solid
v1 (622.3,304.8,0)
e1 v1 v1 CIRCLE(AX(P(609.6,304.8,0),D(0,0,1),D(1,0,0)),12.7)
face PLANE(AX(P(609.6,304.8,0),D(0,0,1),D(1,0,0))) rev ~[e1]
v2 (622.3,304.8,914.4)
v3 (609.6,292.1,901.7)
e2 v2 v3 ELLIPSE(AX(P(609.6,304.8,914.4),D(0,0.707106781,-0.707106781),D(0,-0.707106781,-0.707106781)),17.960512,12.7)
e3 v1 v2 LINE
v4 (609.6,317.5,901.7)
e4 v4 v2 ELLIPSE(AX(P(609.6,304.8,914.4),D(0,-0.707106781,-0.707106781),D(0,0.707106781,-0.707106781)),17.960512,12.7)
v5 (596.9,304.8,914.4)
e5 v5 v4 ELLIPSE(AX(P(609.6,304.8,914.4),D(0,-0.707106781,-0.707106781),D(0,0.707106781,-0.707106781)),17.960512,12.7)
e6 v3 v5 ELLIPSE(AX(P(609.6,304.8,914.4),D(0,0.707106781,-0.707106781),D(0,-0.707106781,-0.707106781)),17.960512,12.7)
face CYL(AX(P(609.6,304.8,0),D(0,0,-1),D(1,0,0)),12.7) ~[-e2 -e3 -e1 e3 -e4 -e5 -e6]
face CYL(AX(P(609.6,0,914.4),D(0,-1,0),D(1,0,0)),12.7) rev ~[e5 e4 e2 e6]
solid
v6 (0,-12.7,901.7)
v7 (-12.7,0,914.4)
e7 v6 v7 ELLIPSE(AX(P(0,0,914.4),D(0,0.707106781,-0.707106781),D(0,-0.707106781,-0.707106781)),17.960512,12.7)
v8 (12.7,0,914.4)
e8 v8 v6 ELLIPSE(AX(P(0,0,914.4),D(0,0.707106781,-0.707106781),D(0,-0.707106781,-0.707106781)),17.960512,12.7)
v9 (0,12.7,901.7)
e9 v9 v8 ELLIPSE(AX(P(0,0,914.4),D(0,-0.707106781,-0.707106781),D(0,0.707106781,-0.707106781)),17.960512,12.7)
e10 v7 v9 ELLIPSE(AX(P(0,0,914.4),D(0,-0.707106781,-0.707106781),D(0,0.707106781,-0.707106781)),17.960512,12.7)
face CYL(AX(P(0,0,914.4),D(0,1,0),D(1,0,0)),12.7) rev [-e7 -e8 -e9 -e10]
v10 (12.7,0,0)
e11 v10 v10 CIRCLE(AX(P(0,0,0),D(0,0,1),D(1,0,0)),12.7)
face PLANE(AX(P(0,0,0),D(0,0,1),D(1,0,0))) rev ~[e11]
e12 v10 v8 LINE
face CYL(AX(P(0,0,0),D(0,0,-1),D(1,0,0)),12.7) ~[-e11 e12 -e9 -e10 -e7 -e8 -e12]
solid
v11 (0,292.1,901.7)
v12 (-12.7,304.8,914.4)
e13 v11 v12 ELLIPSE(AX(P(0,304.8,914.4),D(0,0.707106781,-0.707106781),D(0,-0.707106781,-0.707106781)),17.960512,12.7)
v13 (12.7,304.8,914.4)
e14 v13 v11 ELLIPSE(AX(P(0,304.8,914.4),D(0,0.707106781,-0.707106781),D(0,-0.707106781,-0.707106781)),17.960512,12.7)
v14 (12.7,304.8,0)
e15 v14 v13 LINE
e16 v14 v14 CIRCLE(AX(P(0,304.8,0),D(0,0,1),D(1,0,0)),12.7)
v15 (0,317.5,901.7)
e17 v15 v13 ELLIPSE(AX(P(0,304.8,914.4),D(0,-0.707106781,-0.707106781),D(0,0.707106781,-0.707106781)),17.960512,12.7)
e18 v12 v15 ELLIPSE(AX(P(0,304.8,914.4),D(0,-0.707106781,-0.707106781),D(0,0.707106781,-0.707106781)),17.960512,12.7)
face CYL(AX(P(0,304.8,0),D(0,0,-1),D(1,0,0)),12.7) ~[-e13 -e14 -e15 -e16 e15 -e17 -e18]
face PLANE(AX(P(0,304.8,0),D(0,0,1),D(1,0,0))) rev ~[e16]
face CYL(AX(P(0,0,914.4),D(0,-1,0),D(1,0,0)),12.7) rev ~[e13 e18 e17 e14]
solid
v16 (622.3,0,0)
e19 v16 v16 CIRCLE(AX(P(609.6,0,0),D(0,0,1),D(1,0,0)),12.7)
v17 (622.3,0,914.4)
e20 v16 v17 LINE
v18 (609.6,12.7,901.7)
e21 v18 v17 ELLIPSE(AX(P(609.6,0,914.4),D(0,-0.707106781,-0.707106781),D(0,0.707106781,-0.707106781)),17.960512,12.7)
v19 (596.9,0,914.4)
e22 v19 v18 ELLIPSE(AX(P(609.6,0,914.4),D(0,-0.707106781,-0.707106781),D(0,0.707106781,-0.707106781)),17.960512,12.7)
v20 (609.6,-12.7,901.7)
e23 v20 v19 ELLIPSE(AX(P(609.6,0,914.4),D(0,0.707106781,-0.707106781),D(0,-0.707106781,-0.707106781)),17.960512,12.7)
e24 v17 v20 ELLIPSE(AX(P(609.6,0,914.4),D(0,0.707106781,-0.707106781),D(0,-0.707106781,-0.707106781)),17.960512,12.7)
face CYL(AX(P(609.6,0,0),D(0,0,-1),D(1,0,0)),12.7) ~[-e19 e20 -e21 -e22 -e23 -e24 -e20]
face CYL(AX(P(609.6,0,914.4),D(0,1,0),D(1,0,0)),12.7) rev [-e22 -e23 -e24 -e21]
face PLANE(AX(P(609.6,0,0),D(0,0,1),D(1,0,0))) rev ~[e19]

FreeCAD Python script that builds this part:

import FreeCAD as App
import Part
import Sketcher
from FreeCAD import Vector
Q = App.Units.Quantity

doc = App.newDocument("Part")
body = doc.addObject("PartDesign::Body", "Body")

sketch1 = body.newObject("Sketcher::SketchObject", "Sketch")
sketch1.AttachmentSupport = (doc.getObject("XY_Plane"), [""])
sketch1.MapMode = "FlatFace"
sketch1.addGeometry(Part.Circle(Vector(0, 305, 0), Vector(0, 0, 1), 13), False)
sketch1.addConstraint(Sketcher.Constraint("PointOnObject", 0, 3, -2))
sketch1.addConstraint(Sketcher.Constraint("Diameter", 0, Q("1 in")))
sketch1.addConstraint(Sketcher.Constraint("DistanceY", -1, 1, 0, 3, Q("12 in")))
pad1 = body.newObject("PartDesign::Pad", "Pad")
pad1.Profile = sketch1
pad1.Length = Q("36 in")
body2 = doc.addObject("PartDesign::Body", "Body001")

sketch2 = body2.newObject("Sketcher::SketchObject", "Sketch001")
sketch2.AttachmentSupport = (doc.getObject("XY_Plane001"), [""])
sketch2.MapMode = "FlatFace"
sketch2.addGeometry(Part.Circle(Vector(0, 0, 0), Vector(0, 0, 1), 13), False)
sketch2.addConstraint(Sketcher.Constraint("Coincident", 0, 3, -1, 1))
sketch2.addConstraint(Sketcher.Constraint("Diameter", 0, Q("1 in")))
pad2 = body2.newObject("PartDesign::Pad", "Pad001")
pad2.Profile = sketch2
pad2.Length = Q("36 in")
body3 = doc.addObject("PartDesign::Body", "Body002")

sketch3 = body3.newObject("Sketcher::SketchObject", "Sketch002")
sketch3.AttachmentSupport = (doc.getObject("XY_Plane002"), [""])
sketch3.MapMode = "FlatFace"
sketch3.addGeometry(Part.Circle(Vector(610, 305, 0), Vector(0, 0, 1), 13), False)
sketch3.addConstraint(Sketcher.Constraint("Diameter", 0, Q("1 in")))
sketch3.addConstraint(Sketcher.Constraint("DistanceX", -1, 1, 0, 3, Q("24 in")))
sketch3.addConstraint(Sketcher.Constraint("DistanceY", -1, 1, 0, 3, Q("12 in")))
pad3 = body3.newObject("PartDesign::Pad", "Pad002")
pad3.Profile = sketch3
pad3.Length = Q("36 in")
body4 = doc.addObject("PartDesign::Body", "Body003")

sketch4 = body4.newObject("Sketcher::SketchObject", "Sketch003")
sketch4.AttachmentSupport = (doc.getObject("XY_Plane003"), [""])
sketch4.MapMode = "FlatFace"
sketch4.addGeometry(Part.Circle(Vector(610, 0, 0), Vector(0, 0, 1), 13), False)
sketch4.addConstraint(Sketcher.Constraint("PointOnObject", 0, 3, -1))
sketch4.addConstraint(Sketcher.Constraint("Diameter", 0, Q("1 in")))
sketch4.addConstraint(Sketcher.Constraint("DistanceX", -1, 1, 0, 3, Q("24 in")))
pad4 = body4.newObject("PartDesign::Pad", "Pad003")
pad4.Profile = sketch4
pad4.Length = Q("36 in")
body5 = doc.addObject("PartDesign::Body", "Body004")
body5.AllowCompound = True

sketch5 = body5.newObject("Sketcher::SketchObject", "Sketch004")
sketch5.AttachmentSupport = (doc.getObject("XZ_Plane004"), [""])
sketch5.MapMode = "FlatFace"
sketch5.addGeometry(Part.Circle(Vector(0, 914, 0), Vector(0, 0, 1), 13), False)
sketch5.addGeometry(Part.Circle(Vector(610, 914, 0), Vector(0, 0, 1), 13), False)
sketch5.addConstraint(Sketcher.Constraint("Equal", 0, 1))
sketch5.addConstraint(Sketcher.Constraint("PointOnObject", 0, 3, -2))
sketch5.addConstraint(Sketcher.Constraint("Horizontal", 0, 3, 1, 3))
sketch5.addConstraint(Sketcher.Constraint("Diameter", 0, Q("1 in")))
sketch5.addConstraint(Sketcher.Constraint("DistanceY", -1, 1, 0, 3, Q("36 in")))
sketch5.addConstraint(Sketcher.Constraint("DistanceX", -1, 1, 1, 3, Q("24 in")))
pad5 = body5.newObject("PartDesign::Pad", "Pad004")
pad5.Profile = sketch5
pad5.Type = "TwoLengths"
pad5.Length = 317.501
pad5.Length2 = 12.701
pad5.Reversed = True
doc.recompute()

body6 = doc.addObject("PartDesign::Body", "Body005")
body6.BaseFeature = body5
boolean = body.newObject("PartDesign::Boolean", "Boolean")
boolean.Type = "Cut"
boolean.addObjects([body6])
doc.recompute()

body7 = doc.addObject("PartDesign::Body", "Body006")
body7.BaseFeature = body5
boolean2 = body2.newObject("PartDesign::Boolean", "Boolean001")
boolean2.Type = "Cut"
boolean2.addObjects([body7])
doc.recompute()

body8 = doc.addObject("PartDesign::Body", "Body007")
body8.BaseFeature = body5
boolean3 = body3.newObject("PartDesign::Boolean", "Boolean002")
boolean3.Type = "Cut"
boolean3.addObjects([body8])
doc.recompute()

boolean4 = body4.newObject("PartDesign::Boolean", "Boolean003")
boolean4.Type = "Cut"
boolean4.addObjects([body5])

doc.recompute()
